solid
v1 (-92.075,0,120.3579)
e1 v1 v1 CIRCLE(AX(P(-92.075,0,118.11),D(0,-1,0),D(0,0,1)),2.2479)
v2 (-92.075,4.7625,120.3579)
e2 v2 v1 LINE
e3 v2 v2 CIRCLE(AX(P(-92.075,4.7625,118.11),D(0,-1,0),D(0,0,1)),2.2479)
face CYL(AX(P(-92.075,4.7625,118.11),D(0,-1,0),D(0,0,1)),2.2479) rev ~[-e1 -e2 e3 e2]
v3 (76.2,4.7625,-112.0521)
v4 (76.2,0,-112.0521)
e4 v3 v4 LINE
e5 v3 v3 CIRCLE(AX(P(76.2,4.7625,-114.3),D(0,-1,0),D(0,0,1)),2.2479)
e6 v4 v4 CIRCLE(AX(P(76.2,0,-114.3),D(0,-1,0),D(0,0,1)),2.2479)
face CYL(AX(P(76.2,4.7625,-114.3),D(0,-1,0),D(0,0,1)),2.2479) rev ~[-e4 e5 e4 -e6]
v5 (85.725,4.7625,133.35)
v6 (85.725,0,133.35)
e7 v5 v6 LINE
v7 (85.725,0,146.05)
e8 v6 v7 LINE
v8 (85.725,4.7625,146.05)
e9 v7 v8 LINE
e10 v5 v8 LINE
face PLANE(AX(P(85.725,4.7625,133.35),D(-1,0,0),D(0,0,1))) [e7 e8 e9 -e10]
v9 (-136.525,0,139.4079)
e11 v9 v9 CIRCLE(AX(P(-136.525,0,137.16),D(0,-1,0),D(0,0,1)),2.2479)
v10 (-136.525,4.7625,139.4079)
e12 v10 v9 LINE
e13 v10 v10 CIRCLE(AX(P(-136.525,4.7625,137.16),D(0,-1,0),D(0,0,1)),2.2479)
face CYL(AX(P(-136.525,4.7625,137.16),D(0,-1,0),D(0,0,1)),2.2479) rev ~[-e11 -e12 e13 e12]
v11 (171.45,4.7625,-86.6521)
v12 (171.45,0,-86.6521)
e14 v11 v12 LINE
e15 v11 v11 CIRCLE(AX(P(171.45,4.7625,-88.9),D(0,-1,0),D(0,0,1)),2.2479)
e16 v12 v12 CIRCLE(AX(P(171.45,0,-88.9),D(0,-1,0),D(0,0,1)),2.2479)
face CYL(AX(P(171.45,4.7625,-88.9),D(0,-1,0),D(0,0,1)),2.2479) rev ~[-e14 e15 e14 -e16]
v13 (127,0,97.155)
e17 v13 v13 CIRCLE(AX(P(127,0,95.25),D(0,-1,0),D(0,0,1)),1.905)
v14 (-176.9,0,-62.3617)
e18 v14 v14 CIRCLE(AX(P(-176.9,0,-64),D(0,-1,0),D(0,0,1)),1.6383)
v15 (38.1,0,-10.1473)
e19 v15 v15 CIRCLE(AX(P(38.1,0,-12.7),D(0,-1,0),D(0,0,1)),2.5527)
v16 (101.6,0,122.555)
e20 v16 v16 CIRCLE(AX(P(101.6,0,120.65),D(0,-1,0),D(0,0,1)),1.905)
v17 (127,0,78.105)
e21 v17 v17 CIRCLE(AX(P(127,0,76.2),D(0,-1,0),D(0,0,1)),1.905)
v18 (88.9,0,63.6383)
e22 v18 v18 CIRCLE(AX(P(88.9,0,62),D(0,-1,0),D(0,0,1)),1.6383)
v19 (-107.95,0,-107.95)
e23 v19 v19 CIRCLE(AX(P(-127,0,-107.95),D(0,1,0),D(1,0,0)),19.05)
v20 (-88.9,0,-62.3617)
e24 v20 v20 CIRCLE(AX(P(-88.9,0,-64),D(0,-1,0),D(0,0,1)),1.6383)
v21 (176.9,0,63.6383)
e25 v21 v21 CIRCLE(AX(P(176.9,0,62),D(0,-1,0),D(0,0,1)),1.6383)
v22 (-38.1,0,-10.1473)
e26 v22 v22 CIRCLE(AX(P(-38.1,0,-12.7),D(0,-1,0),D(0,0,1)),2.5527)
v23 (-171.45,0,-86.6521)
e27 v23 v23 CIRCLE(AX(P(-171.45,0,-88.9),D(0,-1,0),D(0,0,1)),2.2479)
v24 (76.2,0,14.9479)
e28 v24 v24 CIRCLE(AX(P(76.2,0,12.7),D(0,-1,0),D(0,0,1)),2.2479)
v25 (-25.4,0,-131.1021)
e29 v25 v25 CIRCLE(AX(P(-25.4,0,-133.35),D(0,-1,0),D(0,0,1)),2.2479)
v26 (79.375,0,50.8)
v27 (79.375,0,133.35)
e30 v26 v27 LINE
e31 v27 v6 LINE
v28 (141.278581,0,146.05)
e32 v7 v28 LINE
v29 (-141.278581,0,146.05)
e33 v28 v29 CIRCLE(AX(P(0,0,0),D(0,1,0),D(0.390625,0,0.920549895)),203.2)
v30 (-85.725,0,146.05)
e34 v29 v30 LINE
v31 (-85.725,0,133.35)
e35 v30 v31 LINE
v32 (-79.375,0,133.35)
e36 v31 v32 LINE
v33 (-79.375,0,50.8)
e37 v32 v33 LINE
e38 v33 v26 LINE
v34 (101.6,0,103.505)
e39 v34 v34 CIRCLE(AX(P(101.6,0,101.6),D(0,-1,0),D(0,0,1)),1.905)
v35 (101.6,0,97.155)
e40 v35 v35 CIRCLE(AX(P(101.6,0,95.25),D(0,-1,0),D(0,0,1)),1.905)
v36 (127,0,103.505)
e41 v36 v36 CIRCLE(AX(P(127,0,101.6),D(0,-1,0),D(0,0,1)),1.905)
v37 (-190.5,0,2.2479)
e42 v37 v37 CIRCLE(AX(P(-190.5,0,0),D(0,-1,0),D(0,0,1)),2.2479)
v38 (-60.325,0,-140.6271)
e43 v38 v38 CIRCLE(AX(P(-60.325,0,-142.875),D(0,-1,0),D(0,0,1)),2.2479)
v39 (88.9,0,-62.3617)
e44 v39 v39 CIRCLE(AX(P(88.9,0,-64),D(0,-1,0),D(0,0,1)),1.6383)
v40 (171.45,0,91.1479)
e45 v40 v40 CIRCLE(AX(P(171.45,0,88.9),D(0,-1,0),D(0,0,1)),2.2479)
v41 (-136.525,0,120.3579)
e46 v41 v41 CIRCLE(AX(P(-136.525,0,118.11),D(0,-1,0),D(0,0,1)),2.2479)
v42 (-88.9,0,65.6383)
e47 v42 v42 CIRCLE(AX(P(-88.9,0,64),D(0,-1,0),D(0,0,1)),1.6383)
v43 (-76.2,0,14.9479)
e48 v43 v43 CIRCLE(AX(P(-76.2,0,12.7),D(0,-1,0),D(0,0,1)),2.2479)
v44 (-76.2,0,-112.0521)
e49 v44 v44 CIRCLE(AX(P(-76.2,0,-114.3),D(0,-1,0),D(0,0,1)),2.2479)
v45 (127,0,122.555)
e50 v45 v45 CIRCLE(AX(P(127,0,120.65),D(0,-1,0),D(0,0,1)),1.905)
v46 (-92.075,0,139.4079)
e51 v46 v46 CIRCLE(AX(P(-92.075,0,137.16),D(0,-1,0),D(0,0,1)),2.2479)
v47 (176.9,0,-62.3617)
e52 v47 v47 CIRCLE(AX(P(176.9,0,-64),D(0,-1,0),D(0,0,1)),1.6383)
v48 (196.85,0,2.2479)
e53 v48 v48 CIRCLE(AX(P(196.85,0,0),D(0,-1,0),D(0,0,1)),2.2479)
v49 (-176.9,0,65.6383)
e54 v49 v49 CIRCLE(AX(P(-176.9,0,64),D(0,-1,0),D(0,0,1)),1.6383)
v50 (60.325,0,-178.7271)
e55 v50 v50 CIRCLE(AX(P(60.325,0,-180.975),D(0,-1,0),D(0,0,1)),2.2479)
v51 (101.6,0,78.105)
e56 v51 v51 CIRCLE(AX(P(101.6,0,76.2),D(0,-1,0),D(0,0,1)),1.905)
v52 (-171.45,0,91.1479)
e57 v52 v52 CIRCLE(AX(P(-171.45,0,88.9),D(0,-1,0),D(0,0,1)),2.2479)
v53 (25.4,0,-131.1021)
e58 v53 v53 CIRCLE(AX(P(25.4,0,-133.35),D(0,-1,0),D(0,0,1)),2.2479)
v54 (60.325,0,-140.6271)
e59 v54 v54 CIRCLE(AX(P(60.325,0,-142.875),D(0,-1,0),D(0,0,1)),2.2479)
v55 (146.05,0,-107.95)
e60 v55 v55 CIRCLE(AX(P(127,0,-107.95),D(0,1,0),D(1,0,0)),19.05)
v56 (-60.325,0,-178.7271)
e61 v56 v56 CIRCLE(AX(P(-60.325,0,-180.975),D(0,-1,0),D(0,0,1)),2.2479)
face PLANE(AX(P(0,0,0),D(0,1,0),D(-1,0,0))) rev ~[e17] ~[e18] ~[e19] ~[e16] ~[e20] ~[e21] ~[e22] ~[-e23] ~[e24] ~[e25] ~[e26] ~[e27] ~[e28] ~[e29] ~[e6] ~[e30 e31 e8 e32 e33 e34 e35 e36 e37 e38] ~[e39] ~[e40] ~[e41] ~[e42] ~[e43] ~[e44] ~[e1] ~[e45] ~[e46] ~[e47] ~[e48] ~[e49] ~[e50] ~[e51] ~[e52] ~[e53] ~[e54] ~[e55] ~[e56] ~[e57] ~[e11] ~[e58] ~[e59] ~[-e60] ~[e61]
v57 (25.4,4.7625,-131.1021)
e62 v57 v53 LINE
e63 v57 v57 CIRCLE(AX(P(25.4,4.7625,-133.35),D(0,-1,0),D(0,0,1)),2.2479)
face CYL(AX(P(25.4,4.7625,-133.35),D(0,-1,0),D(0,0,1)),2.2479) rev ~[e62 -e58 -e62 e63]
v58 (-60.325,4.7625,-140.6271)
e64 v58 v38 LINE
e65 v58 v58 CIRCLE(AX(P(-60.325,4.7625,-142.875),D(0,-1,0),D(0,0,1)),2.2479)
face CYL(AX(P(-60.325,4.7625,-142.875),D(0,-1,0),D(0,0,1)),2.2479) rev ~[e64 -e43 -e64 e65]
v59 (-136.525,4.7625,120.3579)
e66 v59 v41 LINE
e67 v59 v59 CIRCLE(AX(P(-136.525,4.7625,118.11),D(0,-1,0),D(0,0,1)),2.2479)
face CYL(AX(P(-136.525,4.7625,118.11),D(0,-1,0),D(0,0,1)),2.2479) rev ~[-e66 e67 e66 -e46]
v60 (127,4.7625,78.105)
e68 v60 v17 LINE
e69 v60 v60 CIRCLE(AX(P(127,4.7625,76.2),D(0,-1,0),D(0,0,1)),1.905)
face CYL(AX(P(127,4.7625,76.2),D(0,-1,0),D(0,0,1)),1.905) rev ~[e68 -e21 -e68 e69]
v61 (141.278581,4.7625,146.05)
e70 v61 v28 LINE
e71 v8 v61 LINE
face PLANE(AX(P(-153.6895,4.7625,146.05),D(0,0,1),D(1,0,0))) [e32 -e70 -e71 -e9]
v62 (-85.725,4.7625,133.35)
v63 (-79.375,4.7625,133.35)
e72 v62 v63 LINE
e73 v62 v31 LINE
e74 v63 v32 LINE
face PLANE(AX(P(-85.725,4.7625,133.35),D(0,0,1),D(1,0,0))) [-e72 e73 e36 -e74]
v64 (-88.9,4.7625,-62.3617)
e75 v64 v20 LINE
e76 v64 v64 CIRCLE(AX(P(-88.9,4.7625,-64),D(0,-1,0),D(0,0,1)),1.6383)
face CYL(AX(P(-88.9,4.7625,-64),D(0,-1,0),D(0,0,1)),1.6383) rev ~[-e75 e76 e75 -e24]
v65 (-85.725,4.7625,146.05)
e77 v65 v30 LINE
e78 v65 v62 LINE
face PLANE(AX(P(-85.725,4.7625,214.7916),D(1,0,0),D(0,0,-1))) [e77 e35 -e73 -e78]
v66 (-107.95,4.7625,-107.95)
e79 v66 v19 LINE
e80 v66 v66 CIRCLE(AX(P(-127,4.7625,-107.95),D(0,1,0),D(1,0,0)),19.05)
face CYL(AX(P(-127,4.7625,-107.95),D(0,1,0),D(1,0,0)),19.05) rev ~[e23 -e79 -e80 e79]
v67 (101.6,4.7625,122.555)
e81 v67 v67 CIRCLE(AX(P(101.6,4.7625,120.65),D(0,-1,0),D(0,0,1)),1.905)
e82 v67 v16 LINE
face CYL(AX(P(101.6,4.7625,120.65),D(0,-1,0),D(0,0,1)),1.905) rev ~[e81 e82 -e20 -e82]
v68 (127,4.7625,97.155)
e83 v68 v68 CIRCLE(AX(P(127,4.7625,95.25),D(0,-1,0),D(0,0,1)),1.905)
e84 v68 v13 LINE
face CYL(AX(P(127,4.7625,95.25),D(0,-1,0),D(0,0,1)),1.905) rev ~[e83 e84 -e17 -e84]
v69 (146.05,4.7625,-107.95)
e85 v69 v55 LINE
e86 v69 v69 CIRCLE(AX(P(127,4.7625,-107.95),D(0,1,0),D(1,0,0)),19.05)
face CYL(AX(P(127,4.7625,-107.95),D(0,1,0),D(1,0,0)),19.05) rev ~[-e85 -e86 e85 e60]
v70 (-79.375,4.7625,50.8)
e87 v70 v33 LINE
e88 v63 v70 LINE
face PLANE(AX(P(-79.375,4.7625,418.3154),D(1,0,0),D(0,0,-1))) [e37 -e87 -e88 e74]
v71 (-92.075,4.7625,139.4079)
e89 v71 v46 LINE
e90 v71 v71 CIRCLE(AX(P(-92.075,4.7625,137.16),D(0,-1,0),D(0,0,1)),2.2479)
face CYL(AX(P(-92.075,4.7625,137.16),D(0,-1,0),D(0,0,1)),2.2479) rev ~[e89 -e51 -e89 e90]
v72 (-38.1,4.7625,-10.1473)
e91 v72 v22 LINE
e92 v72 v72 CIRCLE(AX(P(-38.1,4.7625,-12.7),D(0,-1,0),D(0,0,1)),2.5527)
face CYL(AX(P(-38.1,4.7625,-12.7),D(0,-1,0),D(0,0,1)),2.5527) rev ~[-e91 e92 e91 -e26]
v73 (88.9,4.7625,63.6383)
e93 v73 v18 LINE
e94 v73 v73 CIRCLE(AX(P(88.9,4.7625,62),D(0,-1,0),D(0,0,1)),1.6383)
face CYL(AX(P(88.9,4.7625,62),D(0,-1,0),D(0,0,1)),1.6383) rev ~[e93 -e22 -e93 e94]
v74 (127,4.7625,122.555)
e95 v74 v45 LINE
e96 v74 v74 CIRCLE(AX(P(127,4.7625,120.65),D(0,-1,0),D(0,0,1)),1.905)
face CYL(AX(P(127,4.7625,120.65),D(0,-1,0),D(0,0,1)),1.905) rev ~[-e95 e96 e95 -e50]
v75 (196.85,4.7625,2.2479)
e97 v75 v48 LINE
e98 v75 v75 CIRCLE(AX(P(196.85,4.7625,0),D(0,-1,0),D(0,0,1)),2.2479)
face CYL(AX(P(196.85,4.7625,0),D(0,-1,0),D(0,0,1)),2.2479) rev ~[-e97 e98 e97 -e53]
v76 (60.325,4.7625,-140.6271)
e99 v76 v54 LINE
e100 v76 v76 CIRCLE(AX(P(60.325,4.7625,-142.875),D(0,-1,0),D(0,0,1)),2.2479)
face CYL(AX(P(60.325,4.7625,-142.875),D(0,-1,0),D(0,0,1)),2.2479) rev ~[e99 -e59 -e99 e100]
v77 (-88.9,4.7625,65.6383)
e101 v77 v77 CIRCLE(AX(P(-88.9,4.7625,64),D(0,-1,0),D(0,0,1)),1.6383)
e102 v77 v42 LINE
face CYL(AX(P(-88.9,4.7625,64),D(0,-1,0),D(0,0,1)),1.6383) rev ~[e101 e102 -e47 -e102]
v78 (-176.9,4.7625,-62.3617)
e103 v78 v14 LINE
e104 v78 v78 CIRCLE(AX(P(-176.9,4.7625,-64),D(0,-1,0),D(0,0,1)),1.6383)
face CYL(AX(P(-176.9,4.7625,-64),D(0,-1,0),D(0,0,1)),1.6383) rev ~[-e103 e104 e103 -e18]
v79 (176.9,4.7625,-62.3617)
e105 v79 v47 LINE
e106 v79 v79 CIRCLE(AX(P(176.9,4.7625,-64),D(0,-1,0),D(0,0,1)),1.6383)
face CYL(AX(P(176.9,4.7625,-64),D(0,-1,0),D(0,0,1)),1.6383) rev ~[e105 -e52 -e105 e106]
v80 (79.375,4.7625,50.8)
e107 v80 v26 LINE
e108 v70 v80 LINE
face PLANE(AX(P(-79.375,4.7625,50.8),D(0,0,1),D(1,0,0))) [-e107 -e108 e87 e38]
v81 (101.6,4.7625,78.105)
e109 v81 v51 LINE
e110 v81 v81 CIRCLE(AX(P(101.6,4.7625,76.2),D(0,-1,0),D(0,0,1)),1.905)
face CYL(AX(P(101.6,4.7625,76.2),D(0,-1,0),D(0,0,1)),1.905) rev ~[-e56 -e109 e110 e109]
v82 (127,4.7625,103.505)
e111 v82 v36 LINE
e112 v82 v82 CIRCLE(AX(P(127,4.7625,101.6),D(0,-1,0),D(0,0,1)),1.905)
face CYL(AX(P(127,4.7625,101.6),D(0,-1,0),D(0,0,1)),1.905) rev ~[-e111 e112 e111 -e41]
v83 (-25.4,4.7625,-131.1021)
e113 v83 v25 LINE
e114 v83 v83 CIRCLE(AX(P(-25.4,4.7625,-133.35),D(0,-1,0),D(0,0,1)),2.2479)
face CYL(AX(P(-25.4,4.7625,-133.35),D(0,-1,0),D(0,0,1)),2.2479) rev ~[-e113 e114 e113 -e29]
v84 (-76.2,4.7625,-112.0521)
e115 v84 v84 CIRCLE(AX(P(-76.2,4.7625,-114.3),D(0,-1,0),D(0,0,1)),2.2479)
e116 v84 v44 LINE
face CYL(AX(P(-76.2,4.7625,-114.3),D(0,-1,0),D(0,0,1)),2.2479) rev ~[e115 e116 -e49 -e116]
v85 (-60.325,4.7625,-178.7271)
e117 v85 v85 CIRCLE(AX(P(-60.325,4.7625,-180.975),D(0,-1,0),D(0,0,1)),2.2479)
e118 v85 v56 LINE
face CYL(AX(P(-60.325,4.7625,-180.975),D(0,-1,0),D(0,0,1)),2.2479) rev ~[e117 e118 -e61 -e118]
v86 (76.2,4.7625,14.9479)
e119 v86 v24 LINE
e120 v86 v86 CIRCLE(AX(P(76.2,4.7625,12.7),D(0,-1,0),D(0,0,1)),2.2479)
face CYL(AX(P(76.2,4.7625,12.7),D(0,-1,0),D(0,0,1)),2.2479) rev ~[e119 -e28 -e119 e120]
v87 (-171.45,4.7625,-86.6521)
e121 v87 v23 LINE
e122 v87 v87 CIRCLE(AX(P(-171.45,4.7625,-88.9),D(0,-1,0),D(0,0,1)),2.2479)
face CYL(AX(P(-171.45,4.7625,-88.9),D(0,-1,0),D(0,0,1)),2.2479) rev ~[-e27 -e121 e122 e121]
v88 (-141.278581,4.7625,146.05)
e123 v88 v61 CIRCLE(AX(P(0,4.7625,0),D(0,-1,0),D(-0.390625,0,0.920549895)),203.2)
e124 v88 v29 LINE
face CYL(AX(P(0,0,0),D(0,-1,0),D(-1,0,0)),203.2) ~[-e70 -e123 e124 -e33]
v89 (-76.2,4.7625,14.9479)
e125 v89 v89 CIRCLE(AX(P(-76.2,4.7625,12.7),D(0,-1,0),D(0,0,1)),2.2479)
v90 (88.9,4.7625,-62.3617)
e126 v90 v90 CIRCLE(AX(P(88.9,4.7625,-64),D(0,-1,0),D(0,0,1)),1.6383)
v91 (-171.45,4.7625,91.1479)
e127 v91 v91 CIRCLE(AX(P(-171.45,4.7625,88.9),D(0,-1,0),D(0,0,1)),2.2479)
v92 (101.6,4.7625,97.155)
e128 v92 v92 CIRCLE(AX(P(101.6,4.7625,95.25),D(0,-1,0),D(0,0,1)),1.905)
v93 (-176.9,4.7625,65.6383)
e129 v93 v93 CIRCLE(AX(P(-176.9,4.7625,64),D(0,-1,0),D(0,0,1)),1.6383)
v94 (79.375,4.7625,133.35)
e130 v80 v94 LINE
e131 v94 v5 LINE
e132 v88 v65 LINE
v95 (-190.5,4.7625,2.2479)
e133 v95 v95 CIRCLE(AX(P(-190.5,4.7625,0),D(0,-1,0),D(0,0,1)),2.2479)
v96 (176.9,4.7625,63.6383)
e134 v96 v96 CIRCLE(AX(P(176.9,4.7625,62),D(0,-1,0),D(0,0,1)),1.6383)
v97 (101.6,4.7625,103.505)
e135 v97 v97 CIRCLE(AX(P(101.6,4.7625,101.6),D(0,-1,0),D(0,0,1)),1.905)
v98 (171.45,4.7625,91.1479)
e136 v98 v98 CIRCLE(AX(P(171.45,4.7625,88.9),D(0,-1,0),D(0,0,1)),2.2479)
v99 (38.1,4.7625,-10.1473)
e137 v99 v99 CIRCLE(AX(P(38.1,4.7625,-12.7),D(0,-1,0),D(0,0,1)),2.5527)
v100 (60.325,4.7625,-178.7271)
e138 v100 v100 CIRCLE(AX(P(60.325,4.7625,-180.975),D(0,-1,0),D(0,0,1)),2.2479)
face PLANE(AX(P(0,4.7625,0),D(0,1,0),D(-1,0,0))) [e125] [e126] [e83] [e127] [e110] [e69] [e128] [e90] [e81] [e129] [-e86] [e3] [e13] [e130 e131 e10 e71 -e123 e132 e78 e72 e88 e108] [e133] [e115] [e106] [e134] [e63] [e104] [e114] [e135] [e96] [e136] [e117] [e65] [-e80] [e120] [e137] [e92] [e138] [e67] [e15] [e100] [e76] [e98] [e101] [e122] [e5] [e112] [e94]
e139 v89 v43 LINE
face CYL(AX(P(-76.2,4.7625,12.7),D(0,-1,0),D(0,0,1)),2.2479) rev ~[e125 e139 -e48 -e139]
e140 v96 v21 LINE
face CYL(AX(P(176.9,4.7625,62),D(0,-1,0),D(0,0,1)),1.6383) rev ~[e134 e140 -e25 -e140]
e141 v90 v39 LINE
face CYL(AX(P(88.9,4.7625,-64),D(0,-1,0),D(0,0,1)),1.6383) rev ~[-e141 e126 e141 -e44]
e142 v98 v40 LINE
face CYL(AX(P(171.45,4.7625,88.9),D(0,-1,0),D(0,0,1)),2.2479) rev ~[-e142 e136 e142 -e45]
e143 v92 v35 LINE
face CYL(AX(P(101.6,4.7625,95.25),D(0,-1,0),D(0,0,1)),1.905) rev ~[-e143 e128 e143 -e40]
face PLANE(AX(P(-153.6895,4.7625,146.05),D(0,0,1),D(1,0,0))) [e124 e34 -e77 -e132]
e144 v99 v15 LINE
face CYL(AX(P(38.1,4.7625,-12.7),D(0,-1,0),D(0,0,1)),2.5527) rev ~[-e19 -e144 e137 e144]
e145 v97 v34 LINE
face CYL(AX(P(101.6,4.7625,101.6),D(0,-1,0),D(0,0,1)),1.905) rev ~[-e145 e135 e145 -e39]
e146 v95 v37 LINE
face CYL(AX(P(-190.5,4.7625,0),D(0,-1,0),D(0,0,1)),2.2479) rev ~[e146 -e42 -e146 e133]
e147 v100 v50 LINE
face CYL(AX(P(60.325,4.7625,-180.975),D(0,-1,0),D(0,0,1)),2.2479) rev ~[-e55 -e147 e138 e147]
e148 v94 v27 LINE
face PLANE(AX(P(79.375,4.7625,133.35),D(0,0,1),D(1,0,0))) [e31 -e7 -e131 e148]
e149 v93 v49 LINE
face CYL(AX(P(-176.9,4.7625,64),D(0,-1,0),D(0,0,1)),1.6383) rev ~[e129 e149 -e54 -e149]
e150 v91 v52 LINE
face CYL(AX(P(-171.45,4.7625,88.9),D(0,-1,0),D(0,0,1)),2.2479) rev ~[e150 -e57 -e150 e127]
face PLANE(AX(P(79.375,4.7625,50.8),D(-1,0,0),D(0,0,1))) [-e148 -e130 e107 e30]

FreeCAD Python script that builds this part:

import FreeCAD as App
import Part
import Sketcher
from FreeCAD import Vector
Q = App.Units.Quantity

doc = App.newDocument("Part")
body = doc.addObject("PartDesign::Body", "Body")

sketch1 = body.newObject("Sketcher::SketchObject", "Sketch")
sketch1.AttachmentSupport = (doc.getObject("XZ_Plane"), [""])
sketch1.MapMode = "FlatFace"
sketch1.addGeometry(Part.Circle(Vector(0, 0, 0), Vector(0, 0, 1), 203), False)
sketch1.addConstraint([
    Sketcher.Constraint("Coincident", 0, 3, -1, 1),
    Sketcher.Constraint("Diameter", 0, Q("16 in")),
])
pad1 = body.newObject("PartDesign::Pad", "Pad")
pad1.Profile = sketch1
pad1.Length = Q("0.1875 in")
pad1.Reversed = True

sketch2 = body.newObject("Sketcher::SketchObject", "Sketch001")
sketch2.AttachmentSupport = (doc.getObject("XZ_Plane"), [""])
sketch2.MapMode = "FlatFace"
sketch2.AttachmentOffset = App.Placement(Vector(0, 0, -0.1875 * 25.4), App.Rotation())
sketch2.addGeometry([
    Part.Circle(Vector(-88.9, -64, 0), Vector(0, 0, 1), 1.6),
    Part.Circle(Vector(-176.9, -64, 0), Vector(0, 0, 1), 1.6),
    Part.Circle(Vector(-88.9, 64, 0), Vector(0, 0, 1), 1.6),
    Part.Circle(Vector(-176.9, 64, 0), Vector(0, 0, 1), 1.6),
], False)
sketch2.addConstraint([
    Sketcher.Constraint("Equal", 0, 1),
    Sketcher.Constraint("Equal", 1, 2),
    Sketcher.Constraint("Equal", 2, 3),
    Sketcher.Constraint("Symmetric", 0, 3, 2, 3, -1),
    Sketcher.Constraint("Symmetric", 1, 3, 3, 3, -1),
    Sketcher.Constraint("Horizontal", 0, 3, 1, 3),
    Sketcher.Constraint("Diameter", 0, Q("0.129 in")),
    Sketcher.Constraint("DistanceX", 0, 3, -1, 1, Q("3.5 in")),
    Sketcher.Constraint("DistanceY", 0, 3, -1, 1, 64.0),
    Sketcher.Constraint("DistanceX", 1, 3, -1, 1, 176.9),
])
doc.recompute()
hole = body.newObject("PartDesign::Hole", "Hole")
hole.Profile = sketch2
hole.ThreadType = "None"
hole.Diameter = Q("0.129 in")
hole.DepthType = "ThroughAll"
hole.Reversed = True

sketch3 = body.newObject("Sketcher::SketchObject", "Sketch002")
sketch3.AttachmentSupport = (doc.getObject("XZ_Plane"), [""])
sketch3.MapMode = "FlatFace"
sketch3.AttachmentOffset = App.Placement(Vector(0, 0, -0.1875 * 25.4), App.Rotation())
sketch3.addGeometry([
    Part.Circle(Vector(88.9, -64, 0), Vector(0, 0, 1), 1.6),
    Part.Circle(Vector(176.9, -64, 0), Vector(0, 0, 1), 1.6),
    Part.Circle(Vector(88.9, 62, 0), Vector(0, 0, 1), 1.6),
    Part.Circle(Vector(176.9, 62, 0), Vector(0, 0, 1), 1.6),
], False)
sketch3.addConstraint([
    Sketcher.Constraint("Equal", 0, 1),
    Sketcher.Constraint("Equal", 1, 2),
    Sketcher.Constraint("Equal", 2, 3),
    Sketcher.Constraint("Horizontal", 0, 3, 1, 3),
    Sketcher.Constraint("Horizontal", 2, 3, 3, 3),
    Sketcher.Constraint("Vertical", 0, 3, 2, 3),
    Sketcher.Constraint("Vertical", 1, 3, 3, 3),
    Sketcher.Constraint("Diameter", 0, Q("0.129 in")),
    Sketcher.Constraint("DistanceX", -1, 1, 0, 3, Q("3.5 in")),
    Sketcher.Constraint("DistanceY", 0, 3, -1, 1, 64.0),
    Sketcher.Constraint("DistanceX", -1, 1, 1, 3, 176.9),
    Sketcher.Constraint("DistanceY", -1, 1, 2, 3, 62.0),
])
doc.recompute()
hole2 = body.newObject("PartDesign::Hole", "Hole001")
hole2.Profile = sketch3
hole2.ThreadType = "None"
hole2.Diameter = Q("0.129 in")
hole2.DepthType = "ThroughAll"
hole2.Reversed = True

sketch4 = body.newObject("Sketcher::SketchObject", "Sketch003")
sketch4.AttachmentSupport = (doc.getObject("XZ_Plane"), [""])
sketch4.MapMode = "FlatFace"
sketch4.AttachmentOffset = App.Placement(Vector(0, 0, -0.1875 * 25.4), App.Rotation())
sketch4.addGeometry([
    Part.Circle(Vector(-38.1, -12.7, 0), Vector(0, 0, 1), 2.6),
    Part.Circle(Vector(38.1, -12.7, 0), Vector(0, 0, 1), 2.6),
], False)
sketch4.addConstraint([
    Sketcher.Constraint("Equal", 0, 1),
    Sketcher.Constraint("Symmetric", 0, 3, 1, 3, -2),
    Sketcher.Constraint("Diameter", 0, Q("0.201 in")),
    Sketcher.Constraint("DistanceX", 0, 3, 1, 3, Q("3 in")),
    Sketcher.Constraint("DistanceY", 0, 3, -1, 1, Q("0.5 in")),
])
doc.recompute()
hole3 = body.newObject("PartDesign::Hole", "Hole002")
hole3.Profile = sketch4
hole3.ThreadType = "None"
hole3.Diameter = Q("0.201 in")
hole3.DepthType = "ThroughAll"
hole3.Reversed = True

sketch5 = body.newObject("Sketcher::SketchObject", "Sketch004")
sketch5.AttachmentSupport = (doc.getObject("XZ_Plane"), [""])
sketch5.MapMode = "FlatFace"
sketch5.AttachmentOffset = App.Placement(Vector(0, 0, -0.1875 * 25.4), App.Rotation())
sketch5.addGeometry([
    Part.LineSegment(Vector(79, 51, 0), Vector(-79, 51, 0)),
    Part.LineSegment(Vector(-79, 51, 0), Vector(-79, 418, 0)),
    Part.LineSegment(Vector(-79, 418, 0), Vector(79, 418, 0)),
    Part.LineSegment(Vector(79, 418, 0), Vector(79, 51, 0)),
], False)
sketch5.addConstraint([
    Sketcher.Constraint("Coincident", 0, 2, 1, 1),
    Sketcher.Constraint("Coincident", 1, 2, 2, 1),
    Sketcher.Constraint("Coincident", 2, 2, 3, 1),
    Sketcher.Constraint("Coincident", 3, 2, 0, 1),
    Sketcher.Constraint("Horizontal", 0),
    Sketcher.Constraint("Vertical", 1),
    Sketcher.Constraint("Horizontal", 2),
    Sketcher.Constraint("Vertical", 3),
    Sketcher.Constraint("DistanceY", -1, 1, 0, 2, Q("2 in")),
    Sketcher.Constraint("DistanceX", 0, 2, 0, 1, Q("6.25 in")),
    Sketcher.Constraint("DistanceX", 0, 2, -1, 1, Q("3.125 in")),
    Sketcher.Constraint("DistanceY", 1, 1, 1, 2, Q("14.4691 in")),
])
pocket1 = body.newObject("PartDesign::Pocket", "Pocket")
pocket1.Profile = sketch5
pocket1.Length = Q("1 in")
pocket1.Reversed = True

sketch6 = body.newObject("Sketcher::SketchObject", "Sketch005")
sketch6.AttachmentSupport = (doc.getObject("XZ_Plane"), [""])
sketch6.MapMode = "FlatFace"
sketch6.AttachmentOffset = App.Placement(Vector(0, 0, -0.1875 * 25.4), App.Rotation())
sketch6.addGeometry([
    Part.LineSegment(Vector(86, 133, 0), Vector(-86, 133, 0)),
    Part.LineSegment(Vector(-86, 133, 0), Vector(-86, 215, 0)),
    Part.LineSegment(Vector(-86, 215, 0), Vector(86, 215, 0)),
    Part.LineSegment(Vector(86, 215, 0), Vector(86, 133, 0)),
], False)
sketch6.addConstraint([
    Sketcher.Constraint("Coincident", 0, 2, 1, 1),
    Sketcher.Constraint("Coincident", 1, 2, 2, 1),
    Sketcher.Constraint("Coincident", 2, 2, 3, 1),
    Sketcher.Constraint("Coincident", 3, 2, 0, 1),
    Sketcher.Constraint("Horizontal", 0),
    Sketcher.Constraint("Vertical", 1),
    Sketcher.Constraint("Horizontal", 2),
    Sketcher.Constraint("Vertical", 3),
    Sketcher.Constraint("DistanceX", 0, 2, 0, 1, Q("6.75 in")),
    Sketcher.Constraint("DistanceY", -1, 1, 0, 2, Q("5.25 in")),
    Sketcher.Constraint("DistanceX", 0, 2, -1, 1, Q("3.375 in")),
    Sketcher.Constraint("DistanceY", 1, 1, 1, 2, 81.4416),
])
pocket2 = body.newObject("PartDesign::Pocket", "Pocket001")
pocket2.Profile = sketch6
pocket2.Length = Q("1 in")
pocket2.Reversed = True

sketch7 = body.newObject("Sketcher::SketchObject", "Sketch006")
sketch7.AttachmentSupport = (doc.getObject("XZ_Plane"), [""])
sketch7.MapMode = "FlatFace"
sketch7.AttachmentOffset = App.Placement(Vector(0, 0, -0.1875 * 25.4), App.Rotation())
sketch7.addGeometry([
    Part.Circle(Vector(-136.5, 118.1, 0), Vector(0, 0, 1), 2.2),
    Part.Circle(Vector(-92.1, 118.1, 0), Vector(0, 0, 1), 2.2),
    Part.Circle(Vector(-136.5, 137.2, 0), Vector(0, 0, 1), 2.2),
    Part.Circle(Vector(-92.1, 137.2, 0), Vector(0, 0, 1), 2.2),
], False)
sketch7.addConstraint([
    Sketcher.Constraint("Equal", 0, 1),
    Sketcher.Constraint("Equal", 1, 2),
    Sketcher.Constraint("Equal", 2, 3),
    Sketcher.Constraint("Horizontal", 0, 3, 1, 3),
    Sketcher.Constraint("Horizontal", 2, 3, 3, 3),
    Sketcher.Constraint("Vertical", 0, 3, 2, 3),
    Sketcher.Constraint("Vertical", 1, 3, 3, 3),
    Sketcher.Constraint("Diameter", 0, Q("0.177 in")),
    Sketcher.Constraint("DistanceY", -1, 1, 2, 3, Q("5.4 in")),
    Sketcher.Constraint("DistanceY", -1, 1, 0, 3, Q("4.65 in")),
    Sketcher.Constraint("DistanceX", 0, 3, 1, 3, Q("1.75 in")),
    Sketcher.Constraint("DistanceX", 0, 3, -1, 1, Q("5.375 in")),
])
doc.recompute()
hole4 = body.newObject("PartDesign::Hole", "Hole003")
hole4.Profile = sketch7
hole4.ThreadType = "None"
hole4.Diameter = Q("0.177 in")
hole4.DepthType = "ThroughAll"
hole4.Reversed = True

sketch8 = body.newObject("Sketcher::SketchObject", "Sketch007")
sketch8.AttachmentSupport = (doc.getObject("XZ_Plane"), [""])
sketch8.MapMode = "FlatFace"
sketch8.AttachmentOffset = App.Placement(Vector(0, 0, -0.1875 * 25.4), App.Rotation())
sketch8.addGeometry([
    Part.Circle(Vector(-190.5, 0, 0), Vector(0, 0, 1), 2.2),
    Part.Circle(Vector(-171.4, -88.9, 0), Vector(0, 0, 1), 2.2),
    Part.Circle(Vector(-171.4, 88.9, 0), Vector(0, 0, 1), 2.2),
], False)
sketch8.addConstraint([
    Sketcher.Constraint("Equal", 0, 1),
    Sketcher.Constraint("Equal", 1, 2),
    Sketcher.Constraint("Symmetric", 1, 3, 2, 3, -1),
    Sketcher.Constraint("PointOnObject", 0, 3, -1),
    Sketcher.Constraint("Diameter", 0, Q("0.177 in")),
    Sketcher.Constraint("DistanceY", 1, 3, 2, 3, Q("7 in")),
    Sketcher.Constraint("DistanceX", 0, 3, -1, 1, Q("7.5 in")),
    Sketcher.Constraint("DistanceX", 1, 3, -1, 1, Q("6.75 in")),
])
doc.recompute()
hole5 = body.newObject("PartDesign::Hole", "Hole004")
hole5.Profile = sketch8
hole5.ThreadType = "None"
hole5.Diameter = Q("0.177 in")
hole5.DepthType = "ThroughAll"
hole5.Reversed = True

sketch9 = body.newObject("Sketcher::SketchObject", "Sketch008")
sketch9.AttachmentSupport = (doc.getObject("XZ_Plane"), [""])
sketch9.MapMode = "FlatFace"
sketch9.AttachmentOffset = App.Placement(Vector(0, 0, -0.1875 * 25.4), App.Rotation())
sketch9.addGeometry([
    Part.Circle(Vector(196.8, 0, 0), Vector(0, 0, 1), 2.2),
    Part.Circle(Vector(171.4, -88.9, 0), Vector(0, 0, 1), 2.2),
    Part.Circle(Vector(171.4, 88.9, 0), Vector(0, 0, 1), 2.2),
], False)
sketch9.addConstraint([
    Sketcher.Constraint("Equal", 0, 1),
    Sketcher.Constraint("Equal", 1, 2),
    Sketcher.Constraint("Symmetric", 1, 3, 2, 3, -1),
    Sketcher.Constraint("PointOnObject", 0, 3, -1),
    Sketcher.Constraint("Diameter", 0, Q("0.177 in")),
    Sketcher.Constraint("DistanceX", 1, 3, 0, 3, Q("1 in")),
    Sketcher.Constraint("DistanceY", 1, 3, 2, 3, Q("7 in")),
    Sketcher.Constraint("DistanceX", -1, 1, 0, 3, Q("7.75 in")),
])
doc.recompute()
hole6 = body.newObject("PartDesign::Hole", "Hole005")
hole6.Profile = sketch9
hole6.ThreadType = "None"
hole6.Diameter = Q("0.177 in")
hole6.DepthType = "ThroughAll"
hole6.Reversed = True

sketch10 = body.newObject("Sketcher::SketchObject", "Sketch009")
sketch10.AttachmentSupport = (doc.getObject("XZ_Plane"), [""])
sketch10.MapMode = "FlatFace"
sketch10.AttachmentOffset = App.Placement(Vector(0, 0, -0.1875 * 25.4), App.Rotation())
sketch10.addGeometry([
    Part.LineSegment(Vector(154, 146, 0), Vector(-154, 146, 0)),
    Part.LineSegment(Vector(-154, 146, 0), Vector(-154, 205, 0)),
    Part.LineSegment(Vector(-154, 205, 0), Vector(154, 205, 0)),
    Part.LineSegment(Vector(154, 205, 0), Vector(154, 146, 0)),
], False)
sketch10.addConstraint([
    Sketcher.Constraint("Coincident", 0, 2, 1, 1),
    Sketcher.Constraint("Coincident", 1, 2, 2, 1),
    Sketcher.Constraint("Coincident", 2, 2, 3, 1),
    Sketcher.Constraint("Coincident", 3, 2, 0, 1),
    Sketcher.Constraint("Horizontal", 0),
    Sketcher.Constraint("Vertical", 1),
    Sketcher.Constraint("Horizontal", 2),
    Sketcher.Constraint("Vertical", 3),
    Sketcher.Constraint("DistanceY", -1, 1, 0, 2, Q("5.75 in")),
    Sketcher.Constraint("DistanceX", 0, 2, 0, 1, 308.124),
    Sketcher.Constraint("DistanceY", 1, 1, 1, 2, 59.3798),
    Sketcher.Constraint("DistanceX", -1, 1, 2, 2, Q("6.0801 in")),
])
pocket3 = body.newObject("PartDesign::Pocket", "Pocket002")
pocket3.Profile = sketch10
pocket3.Length = Q("1 in")
pocket3.Reversed = True

sketch11 = body.newObject("Sketcher::SketchObject", "Sketch010")
sketch11.AttachmentSupport = (doc.getObject("XZ_Plane"), [""])
sketch11.MapMode = "FlatFace"
sketch11.AttachmentOffset = App.Placement(Vector(0, 0, -0.1875 * 25.4), App.Rotation())
sketch11.addGeometry([
    Part.Circle(Vector(-76.2, -114.3, 0), Vector(0, 0, 1), 2.2),
    Part.Circle(Vector(-76.2, 12.7, 0), Vector(0, 0, 1), 2.2),
    Part.Circle(Vector(76.2, -114.3, 0), Vector(0, 0, 1), 2.2),
    Part.Circle(Vector(76.2, 12.7, 0), Vector(0, 0, 1), 2.2),
], False)
sketch11.addConstraint([
    Sketcher.Constraint("Equal", 0, 1),
    Sketcher.Constraint("Equal", 1, 2),
    Sketcher.Constraint("Equal", 2, 3),
    Sketcher.Constraint("Symmetric", 0, 3, 2, 3, -2),
    Sketcher.Constraint("Symmetric", 1, 3, 3, 3, -2),
    Sketcher.Constraint("Vertical", 0, 3, 1, 3),
    Sketcher.Constraint("Diameter", 0, Q("0.177 in")),
    Sketcher.Constraint("DistanceX", 0, 3, -1, 1, Q("3 in")),
    Sketcher.Constraint("DistanceY", 0, 3, 1, 3, Q("5 in")),
    Sketcher.Constraint("DistanceY", 0, 3, -1, 1, Q("4.5 in")),
])
doc.recompute()
hole7 = body.newObject("PartDesign::Hole", "Hole006")
hole7.Profile = sketch11
hole7.ThreadType = "None"
hole7.Diameter = Q("0.177 in")
hole7.DepthType = "ThroughAll"
hole7.Reversed = True

sketch12 = body.newObject("Sketcher::SketchObject", "Sketch011")
sketch12.AttachmentSupport = (doc.getObject("XZ_Plane"), [""])
sketch12.MapMode = "FlatFace"
sketch12.AttachmentOffset = App.Placement(Vector(0, 0, -0.1875 * 25.4), App.Rotation())
sketch12.addGeometry([
    Part.Circle(Vector(-25.4, -133.3, 0), Vector(0, 0, 1), 2.2),
    Part.Circle(Vector(25.4, -133.3, 0), Vector(0, 0, 1), 2.2),
], False)
sketch12.addConstraint([
    Sketcher.Constraint("Equal", 0, 1),
    Sketcher.Constraint("Symmetric", 0, 3, 1, 3, -2),
    Sketcher.Constraint("Diameter", 0, Q("0.177 in")),
    Sketcher.Constraint("DistanceX", 0, 3, -1, 1, Q("1 in")),
    Sketcher.Constraint("DistanceY", 0, 3, -1, 1, Q("5.25 in")),
])
doc.recompute()
hole8 = body.newObject("PartDesign::Hole", "Hole007")
hole8.Profile = sketch12
hole8.ThreadType = "None"
hole8.Diameter = Q("0.177 in")
hole8.DepthType = "ThroughAll"
hole8.Reversed = True

sketch13 = body.newObject("Sketcher::SketchObject", "Sketch012")
sketch13.AttachmentSupport = (doc.getObject("XZ_Plane"), [""])
sketch13.MapMode = "FlatFace"
sketch13.AttachmentOffset = App.Placement(Vector(0, 0, -0.1875 * 25.4), App.Rotation())
sketch13.addGeometry([
    Part.Circle(Vector(-127, -108, 0), Vector(0, 0, 1), 19),
    Part.Circle(Vector(127, -108, 0), Vector(0, 0, 1), 19),
], False)
sketch13.addConstraint([
    Sketcher.Constraint("Equal", 0, 1),
    Sketcher.Constraint("Symmetric", 0, 3, 1, 3, -2),
    Sketcher.Constraint("Diameter", 0, Q("1.5 in")),
    Sketcher.Constraint("DistanceX", 0, 3, -1, 1, Q("5 in")),
    Sketcher.Constraint("DistanceY", 0, 3, -1, 1, Q("4.25 in")),
])
pocket4 = body.newObject("PartDesign::Pocket", "Pocket003")
pocket4.Profile = sketch13
pocket4.Length = Q("1 in")
pocket4.Reversed = True

sketch14 = body.newObject("Sketcher::SketchObject", "Sketch013")
sketch14.AttachmentSupport = (doc.getObject("XZ_Plane"), [""])
sketch14.MapMode = "FlatFace"
sketch14.AttachmentOffset = App.Placement(Vector(0, 0, -0.1875 * 25.4), App.Rotation())
sketch14.addGeometry([
    Part.Circle(Vector(101.6, 76.2, 0), Vector(0, 0, 1), 1.9),
    Part.Circle(Vector(101.6, 95.2, 0), Vector(0, 0, 1), 1.9),
    Part.Circle(Vector(101.6, 101.6, 0), Vector(0, 0, 1), 1.9),
    Part.Circle(Vector(101.6, 120.7, 0), Vector(0, 0, 1), 1.9),
    Part.Circle(Vector(127, 120.7, 0), Vector(0, 0, 1), 1.9),
    Part.Circle(Vector(127, 101.6, 0), Vector(0, 0, 1), 1.9),
    Part.Circle(Vector(127, 95.2, 0), Vector(0, 0, 1), 1.9),
    Part.Circle(Vector(127, 76.2, 0), Vector(0, 0, 1), 1.9),
], False)
sketch14.addConstraint([
    Sketcher.Constraint("Equal", 0, 1),
    Sketcher.Constraint("Equal", 1, 2),
    Sketcher.Constraint("Equal", 2, 3),
    Sketcher.Constraint("Equal", 3, 4),
    Sketcher.Constraint("Equal", 4, 5),
    Sketcher.Constraint("Equal", 5, 6),
    Sketcher.Constraint("Equal", 6, 7),
    Sketcher.Constraint("Horizontal", 3, 3, 4, 3),
    Sketcher.Constraint("Horizontal", 2, 3, 5, 3),
    Sketcher.Constraint("Horizontal", 1, 3, 6, 3),
    Sketcher.Constraint("Horizontal", 0, 3, 7, 3),
    Sketcher.Constraint("Vertical", 0, 3, 1, 3),
    Sketcher.Constraint("Vertical", 1, 3, 2, 3),
    Sketcher.Constraint("Vertical", 2, 3, 3, 3),
    Sketcher.Constraint("Vertical", 4, 3, 5, 3),
    Sketcher.Constraint("Vertical", 5, 3, 6, 3),
    Sketcher.Constraint("Vertical", 6, 3, 7, 3),
    Sketcher.Constraint("Diameter", 0, Q("0.15 in")),
    Sketcher.Constraint("DistanceX", -1, 1, 0, 3, Q("4 in")),
    Sketcher.Constraint("DistanceY", -1, 1, 0, 3, Q("3 in")),
    Sketcher.Constraint("DistanceY", -1, 1, 2, 3, Q("4 in")),
    Sketcher.Constraint("DistanceX", -1, 1, 4, 3, Q("5 in")),
    Sketcher.Constraint("DistanceY", 1, 3, 3, 3, Q("1 in")),
    Sketcher.Constraint("DistanceY", -1, 1, 1, 3, Q("3.75 in")),
])
doc.recompute()
hole9 = body.newObject("PartDesign::Hole", "Hole008")
hole9.Profile = sketch14
hole9.ThreadType = "None"
hole9.Diameter = Q("0.15 in")
hole9.DepthType = "ThroughAll"
hole9.Reversed = True

sketch15 = body.newObject("Sketcher::SketchObject", "Sketch014")
sketch15.AttachmentSupport = (doc.getObject("XZ_Plane"), [""])
sketch15.MapMode = "FlatFace"
sketch15.AttachmentOffset = App.Placement(Vector(0, 0, -0.1875 * 25.4), App.Rotation())
sketch15.addGeometry([
    Part.Circle(Vector(-60.3, -142.9, 0), Vector(0, 0, 1), 2.2),
    Part.Circle(Vector(-60.3, -181, 0), Vector(0, 0, 1), 2.2),
    Part.Circle(Vector(60.3, -142.9, 0), Vector(0, 0, 1), 2.2),
    Part.Circle(Vector(60.3, -181, 0), Vector(0, 0, 1), 2.2),
], False)
sketch15.addConstraint([
    Sketcher.Constraint("Equal", 0, 1),
    Sketcher.Constraint("Equal", 1, 2),
    Sketcher.Constraint("Equal", 2, 3),
    Sketcher.Constraint("Symmetric", 0, 3, 2, 3, -2),
    Sketcher.Constraint("Symmetric", 1, 3, 3, 3, -2),
    Sketcher.Constraint("Vertical", 0, 3, 1, 3),
    Sketcher.Constraint("Diameter", 0, Q("0.177 in")),
    Sketcher.Constraint("DistanceY", 1, 3, 0, 3, Q("1.5 in")),
    Sketcher.Constraint("DistanceX", 0, 3, 2, 3, Q("4.75 in")),
    Sketcher.Constraint("DistanceY", 0, 3, -1, 1, Q("5.625 in")),
])
doc.recompute()
hole10 = body.newObject("PartDesign::Hole", "Hole009")
hole10.Profile = sketch15
hole10.ThreadType = "None"
hole10.Diameter = Q("0.177 in")
hole10.DepthType = "ThroughAll"
hole10.Reversed = True

doc.recompute()
